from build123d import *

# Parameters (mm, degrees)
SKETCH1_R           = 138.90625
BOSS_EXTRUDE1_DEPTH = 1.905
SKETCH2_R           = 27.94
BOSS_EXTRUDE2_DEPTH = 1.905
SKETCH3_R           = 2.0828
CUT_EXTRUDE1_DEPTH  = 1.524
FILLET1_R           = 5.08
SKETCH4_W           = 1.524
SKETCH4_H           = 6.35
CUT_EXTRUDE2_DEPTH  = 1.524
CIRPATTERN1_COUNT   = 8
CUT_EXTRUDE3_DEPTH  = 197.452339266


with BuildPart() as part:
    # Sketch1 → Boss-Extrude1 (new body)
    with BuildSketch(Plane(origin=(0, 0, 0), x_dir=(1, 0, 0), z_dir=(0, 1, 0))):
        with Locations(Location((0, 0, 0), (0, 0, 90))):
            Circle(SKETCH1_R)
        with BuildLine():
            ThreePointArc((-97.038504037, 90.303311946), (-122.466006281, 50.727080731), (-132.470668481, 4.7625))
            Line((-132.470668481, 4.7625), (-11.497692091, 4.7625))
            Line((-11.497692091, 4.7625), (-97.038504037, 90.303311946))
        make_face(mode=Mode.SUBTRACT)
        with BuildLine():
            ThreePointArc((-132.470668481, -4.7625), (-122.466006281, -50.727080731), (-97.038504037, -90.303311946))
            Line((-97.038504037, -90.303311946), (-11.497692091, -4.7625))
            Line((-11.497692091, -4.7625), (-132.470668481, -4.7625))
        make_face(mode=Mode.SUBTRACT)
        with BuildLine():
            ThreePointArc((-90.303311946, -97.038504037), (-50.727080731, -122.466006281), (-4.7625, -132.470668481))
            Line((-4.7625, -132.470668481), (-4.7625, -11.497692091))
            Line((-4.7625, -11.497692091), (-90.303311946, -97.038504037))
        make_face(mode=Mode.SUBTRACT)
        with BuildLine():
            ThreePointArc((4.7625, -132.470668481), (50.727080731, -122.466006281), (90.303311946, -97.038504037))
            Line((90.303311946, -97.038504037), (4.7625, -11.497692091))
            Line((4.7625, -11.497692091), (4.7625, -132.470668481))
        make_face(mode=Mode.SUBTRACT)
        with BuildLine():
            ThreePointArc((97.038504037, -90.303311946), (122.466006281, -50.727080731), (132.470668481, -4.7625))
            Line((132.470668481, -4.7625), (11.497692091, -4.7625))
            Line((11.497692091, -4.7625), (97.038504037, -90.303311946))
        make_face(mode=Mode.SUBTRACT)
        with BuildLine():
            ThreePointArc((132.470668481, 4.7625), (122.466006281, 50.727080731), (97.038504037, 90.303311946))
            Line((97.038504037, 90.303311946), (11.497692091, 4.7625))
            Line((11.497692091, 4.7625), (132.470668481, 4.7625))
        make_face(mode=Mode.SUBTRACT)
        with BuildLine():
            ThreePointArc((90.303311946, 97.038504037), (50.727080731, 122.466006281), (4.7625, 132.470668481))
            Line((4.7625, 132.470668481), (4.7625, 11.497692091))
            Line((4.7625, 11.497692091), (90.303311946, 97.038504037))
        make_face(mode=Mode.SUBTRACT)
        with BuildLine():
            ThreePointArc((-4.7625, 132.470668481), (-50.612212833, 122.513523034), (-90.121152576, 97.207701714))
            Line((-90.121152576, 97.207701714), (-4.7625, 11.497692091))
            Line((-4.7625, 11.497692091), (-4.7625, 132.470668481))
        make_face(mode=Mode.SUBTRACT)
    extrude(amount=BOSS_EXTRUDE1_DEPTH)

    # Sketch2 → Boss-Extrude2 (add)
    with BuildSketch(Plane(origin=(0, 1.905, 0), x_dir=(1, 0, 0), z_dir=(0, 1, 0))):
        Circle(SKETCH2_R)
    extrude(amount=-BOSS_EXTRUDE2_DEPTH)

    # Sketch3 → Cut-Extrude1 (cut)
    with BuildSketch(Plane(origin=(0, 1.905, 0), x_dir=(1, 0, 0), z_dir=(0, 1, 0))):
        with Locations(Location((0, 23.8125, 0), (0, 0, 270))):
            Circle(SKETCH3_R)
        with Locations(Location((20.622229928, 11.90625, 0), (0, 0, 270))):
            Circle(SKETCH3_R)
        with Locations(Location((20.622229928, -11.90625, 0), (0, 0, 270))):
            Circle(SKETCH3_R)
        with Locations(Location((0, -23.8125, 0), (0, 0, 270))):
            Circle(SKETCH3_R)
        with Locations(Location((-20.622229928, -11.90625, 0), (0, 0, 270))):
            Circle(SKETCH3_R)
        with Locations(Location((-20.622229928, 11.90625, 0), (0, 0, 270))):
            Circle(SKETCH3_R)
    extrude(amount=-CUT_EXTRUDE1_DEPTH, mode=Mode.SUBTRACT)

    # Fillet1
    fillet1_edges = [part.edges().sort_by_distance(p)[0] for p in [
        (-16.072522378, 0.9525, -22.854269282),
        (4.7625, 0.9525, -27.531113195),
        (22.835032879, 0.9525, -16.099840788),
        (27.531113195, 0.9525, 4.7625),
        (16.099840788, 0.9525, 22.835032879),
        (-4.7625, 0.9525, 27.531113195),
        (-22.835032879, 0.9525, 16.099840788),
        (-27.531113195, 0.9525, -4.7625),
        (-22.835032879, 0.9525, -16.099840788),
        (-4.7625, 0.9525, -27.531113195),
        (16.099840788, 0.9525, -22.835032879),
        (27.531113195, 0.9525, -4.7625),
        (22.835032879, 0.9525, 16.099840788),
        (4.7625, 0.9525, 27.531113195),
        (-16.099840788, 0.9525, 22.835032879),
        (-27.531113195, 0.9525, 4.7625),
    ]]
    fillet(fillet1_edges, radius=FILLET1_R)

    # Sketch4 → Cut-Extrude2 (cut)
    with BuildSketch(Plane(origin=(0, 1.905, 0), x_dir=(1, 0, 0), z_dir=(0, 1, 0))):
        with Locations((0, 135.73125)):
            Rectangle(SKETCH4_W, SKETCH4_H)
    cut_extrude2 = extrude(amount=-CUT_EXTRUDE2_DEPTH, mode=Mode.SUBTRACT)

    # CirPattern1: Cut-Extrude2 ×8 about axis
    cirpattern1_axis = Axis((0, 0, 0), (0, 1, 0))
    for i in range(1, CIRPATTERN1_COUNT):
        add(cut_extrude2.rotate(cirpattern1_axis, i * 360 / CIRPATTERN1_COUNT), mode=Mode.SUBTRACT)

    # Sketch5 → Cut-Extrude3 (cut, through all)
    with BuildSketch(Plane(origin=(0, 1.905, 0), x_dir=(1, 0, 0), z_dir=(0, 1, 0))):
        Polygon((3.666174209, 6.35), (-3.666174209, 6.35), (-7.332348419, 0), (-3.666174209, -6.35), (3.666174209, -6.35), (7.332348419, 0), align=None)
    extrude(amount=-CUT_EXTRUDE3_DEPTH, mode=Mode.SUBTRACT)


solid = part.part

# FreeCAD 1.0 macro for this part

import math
import FreeCAD as App
import Part
import Sketcher

V = App.Vector
Q = App.Units.Quantity


def edges_at(feature, points):
    """Names of the edges that pass closest to the given points."""
    edges = feature.Shape.Edges
    near = lambda p: min(range(len(edges)), key=lambda i: edges[i].distToShape(Part.Vertex(*p))[0])
    return sorted({f"Edge{near(p) + 1}" for p in points})

doc = App.newDocument("Part")
body = doc.addObject("PartDesign::Body", "Body")

# Sketch on XZ plane
sketch1 = doc.addObject("Sketcher::SketchObject", "Sketch")
body.addObject(sketch1)
sketch1.AttachmentSupport = (doc.XZ_Plane, [""])
sketch1.MapMode = "FlatFace"
sketch1.addGeometry(Part.Circle(V(0, 0, 0), V(0, 0, 1), 139), False)
sketch1.addGeometry(Part.ArcOfCircle(Part.Circle(V(0, 0, 0), V(0, 0, 1), 133), math.radians(2), math.radians(43)), False)
sketch1.addGeometry(Part.LineSegment(V(97, 90, 0), V(11, 5, 0)), False)
sketch1.addGeometry(Part.LineSegment(V(11, 5, 0), V(132, 5, 0)), False)
sketch1.addGeometry(Part.ArcOfCircle(Part.Circle(V(0, 0, 0), V(0, 0, 1), 133), math.radians(47), math.radians(88)), False)
sketch1.addGeometry(Part.LineSegment(V(5, 132, 0), V(5, 11, 0)), False)
sketch1.addGeometry(Part.LineSegment(V(5, 11, 0), V(90, 97, 0)), False)
sketch1.addGeometry(Part.ArcOfCircle(Part.Circle(V(0, 0, 0), V(0, 0, 1), 133), math.radians(-43), math.radians(-2)), False)
sketch1.addGeometry(Part.LineSegment(V(132, -5, 0), V(11, -5, 0)), False)
sketch1.addGeometry(Part.LineSegment(V(11, -5, 0), V(97, -90, 0)), False)
sketch1.addGeometry(Part.ArcOfCircle(Part.Circle(V(0, 0, 0), V(0, 0, 1), 133), math.radians(-88), math.radians(-47)), False)
sketch1.addGeometry(Part.LineSegment(V(90, -97, 0), V(5, -11, 0)), False)
sketch1.addGeometry(Part.LineSegment(V(5, -11, 0), V(5, -132, 0)), False)
sketch1.addGeometry(Part.ArcOfCircle(Part.Circle(V(0, 0, 0), V(0, 0, 1), 133), math.radians(92), math.radians(133)), False)
sketch1.addGeometry(Part.LineSegment(V(-90, 97, 0), V(-5, 11, 0)), False)
sketch1.addGeometry(Part.LineSegment(V(-5, 11, 0), V(-5, 132, 0)), False)
sketch1.addGeometry(Part.ArcOfCircle(Part.Circle(V(0, 0, 0), V(0, 0, 1), 133), math.radians(137), math.radians(178)), False)
sketch1.addGeometry(Part.LineSegment(V(-132, 5, 0), V(-11, 5, 0)), False)
sketch1.addGeometry(Part.LineSegment(V(-11, 5, 0), V(-97, 90, 0)), False)
sketch1.addGeometry(Part.ArcOfCircle(Part.Circle(V(0, 0, 0), V(0, 0, 1), 133), math.radians(-133), math.radians(-92)), False)
sketch1.addGeometry(Part.LineSegment(V(-5, -132, 0), V(-5, -11, 0)), False)
sketch1.addGeometry(Part.LineSegment(V(-5, -11, 0), V(-90, -97, 0)), False)
sketch1.addGeometry(Part.ArcOfCircle(Part.Circle(V(0, 0, 0), V(0, 0, 1), 133), math.radians(-178), math.radians(-137)), False)
sketch1.addGeometry(Part.LineSegment(V(-97, -90, 0), V(-11, -5, 0)), False)
sketch1.addGeometry(Part.LineSegment(V(-11, -5, 0), V(-132, -5, 0)), False)
sketch1.addConstraint(Sketcher.Constraint("Coincident", 1, 2, 2, 1))
sketch1.addConstraint(Sketcher.Constraint("Coincident", 2, 2, 3, 1))
sketch1.addConstraint(Sketcher.Constraint("Coincident", 3, 2, 1, 1))
sketch1.addConstraint(Sketcher.Constraint("Coincident", 4, 2, 5, 1))
sketch1.addConstraint(Sketcher.Constraint("Coincident", 5, 2, 6, 1))
sketch1.addConstraint(Sketcher.Constraint("Coincident", 6, 2, 4, 1))
sketch1.addConstraint(Sketcher.Constraint("Coincident", 7, 2, 8, 1))
sketch1.addConstraint(Sketcher.Constraint("Coincident", 8, 2, 9, 1))
sketch1.addConstraint(Sketcher.Constraint("Coincident", 9, 2, 7, 1))
sketch1.addConstraint(Sketcher.Constraint("Coincident", 10, 2, 11, 1))
sketch1.addConstraint(Sketcher.Constraint("Coincident", 11, 2, 12, 1))
sketch1.addConstraint(Sketcher.Constraint("Coincident", 12, 2, 10, 1))
sketch1.addConstraint(Sketcher.Constraint("Coincident", 13, 2, 14, 1))
sketch1.addConstraint(Sketcher.Constraint("Coincident", 14, 2, 15, 1))
sketch1.addConstraint(Sketcher.Constraint("Coincident", 15, 2, 13, 1))
sketch1.addConstraint(Sketcher.Constraint("Coincident", 16, 2, 17, 1))
sketch1.addConstraint(Sketcher.Constraint("Coincident", 17, 2, 18, 1))
sketch1.addConstraint(Sketcher.Constraint("Coincident", 18, 2, 16, 1))
sketch1.addConstraint(Sketcher.Constraint("Coincident", 19, 2, 20, 1))
sketch1.addConstraint(Sketcher.Constraint("Coincident", 20, 2, 21, 1))
sketch1.addConstraint(Sketcher.Constraint("Coincident", 21, 2, 19, 1))
sketch1.addConstraint(Sketcher.Constraint("Coincident", 22, 2, 23, 1))
sketch1.addConstraint(Sketcher.Constraint("Coincident", 23, 2, 24, 1))
sketch1.addConstraint(Sketcher.Constraint("Coincident", 24, 2, 22, 1))
sketch1.addConstraint(Sketcher.Constraint("Horizontal", 3))
sketch1.addConstraint(Sketcher.Constraint("Vertical", 5))
sketch1.addConstraint(Sketcher.Constraint("Horizontal", 8))
sketch1.addConstraint(Sketcher.Constraint("Vertical", 12))
sketch1.addConstraint(Sketcher.Constraint("Vertical", 15))
sketch1.addConstraint(Sketcher.Constraint("Horizontal", 17))
sketch1.addConstraint(Sketcher.Constraint("Vertical", 20))
sketch1.addConstraint(Sketcher.Constraint("Horizontal", 24))
sketch1.addConstraint(Sketcher.Constraint("Coincident", 0, 3, -1, 1))
sketch1.addConstraint(Sketcher.Constraint("Coincident", 1, 3, -1, 1))
sketch1.addConstraint(Sketcher.Constraint("Coincident", 4, 3, -1, 1))
sketch1.addConstraint(Sketcher.Constraint("Coincident", 7, 3, -1, 1))
sketch1.addConstraint(Sketcher.Constraint("Coincident", 10, 3, -1, 1))
sketch1.addConstraint(Sketcher.Constraint("Coincident", 13, 3, -1, 1))
sketch1.addConstraint(Sketcher.Constraint("Coincident", 16, 3, -1, 1))
sketch1.addConstraint(Sketcher.Constraint("Coincident", 19, 3, -1, 1))
sketch1.addConstraint(Sketcher.Constraint("Coincident", 22, 3, -1, 1))
sketch1.addConstraint(Sketcher.Constraint("Equal", 1, 4))
sketch1.addConstraint(Sketcher.Constraint("Equal", 4, 7))
sketch1.addConstraint(Sketcher.Constraint("Equal", 7, 10))
sketch1.addConstraint(Sketcher.Constraint("Equal", 10, 13))
sketch1.addConstraint(Sketcher.Constraint("Equal", 13, 16))
sketch1.addConstraint(Sketcher.Constraint("Equal", 16, 19))
sketch1.addConstraint(Sketcher.Constraint("Equal", 19, 22))
sketch1.addConstraint(Sketcher.Constraint("Symmetric", 11, 2, 14, 2, -1, 1))
sketch1.addConstraint(Sketcher.Constraint("Symmetric", 8, 2, 17, 2, -1, 1))
sketch1.addConstraint(Sketcher.Constraint("Symmetric", 5, 2, 20, 2, -1, 1))
sketch1.addConstraint(Sketcher.Constraint("Symmetric", 2, 2, 23, 2, -1, 1))
sketch1.addConstraint(Sketcher.Constraint("Symmetric", 5, 2, 14, 2, -2))
sketch1.addConstraint(Sketcher.Constraint("Symmetric", 2, 2, 17, 2, -2))
sketch1.addConstraint(Sketcher.Constraint("Parallel", 2, 6))
sketch1.addConstraint(Sketcher.Constraint("Perpendicular", 6, 9))
sketch1.addConstraint(Sketcher.Constraint("Parallel", 9, 11))
sketch1.addConstraint(Sketcher.Constraint("Parallel", 11, 14))
sketch1.addConstraint(Sketcher.Constraint("Parallel", 14, 18))
sketch1.addConstraint(Sketcher.Constraint("Perpendicular", 18, 23))
sketch1.addConstraint(Sketcher.Constraint("Horizontal", 6, 2, 13, 2))
sketch1.addConstraint(Sketcher.Constraint("Equal", 24, 5))
sketch1.addConstraint(Sketcher.Constraint("Equal", 2, 6))
sketch1.addConstraint(Sketcher.Constraint("Diameter", 0, Q("10.9375 in")))
sketch1.addConstraint(Sketcher.Constraint("Radius", 1, Q("5.21875 in")))
sketch1.addConstraint(Sketcher.Constraint("DistanceY", -1, 1, 2, 2, Q("0.1875 in")))
sketch1.addConstraint(Sketcher.Constraint("DistanceY", 21, 2, -1, 1, 97.207702))
sketch1.addConstraint(Sketcher.Constraint("DistanceX", 3, 1, 3, 2, 120.972976))
pad1 = doc.addObject("PartDesign::Pad", "Pad")
body.addObject(pad1)
pad1.Profile = sketch1
pad1.Length = Q("0.075 in")
pad1.Reversed = True

# Sketch on XZ plane
sketch2 = doc.addObject("Sketcher::SketchObject", "Sketch001")
body.addObject(sketch2)
sketch2.AttachmentSupport = (doc.XZ_Plane, [""])
sketch2.MapMode = "FlatFace"
sketch2.AttachmentOffset = App.Placement(V(0, 0, -0.075 * 25.4), App.Rotation())
sketch2.addGeometry(Part.Circle(V(0, 0, 0), V(0, 0, 1), 28), False)
sketch2.addConstraint(Sketcher.Constraint("Coincident", 0, 3, -1, 1))
sketch2.addConstraint(Sketcher.Constraint("Diameter", 0, Q("2.2 in")))
pad2 = doc.addObject("PartDesign::Pad", "Pad001")
body.addObject(pad2)
pad2.Profile = sketch2
pad2.Length = Q("0.075 in")

# Sketch on XZ plane
sketch3 = doc.addObject("Sketcher::SketchObject", "Sketch002")
body.addObject(sketch3)
sketch3.AttachmentSupport = (doc.XZ_Plane, [""])
sketch3.MapMode = "FlatFace"
sketch3.AttachmentOffset = App.Placement(V(0, 0, -0.075 * 25.4), App.Rotation())
sketch3.addGeometry(Part.Circle(V(0, -23.8, 0), V(0, 0, 1), 2.1), False)
sketch3.addGeometry(Part.Circle(V(20.6, -11.9, 0), V(0, 0, 1), 2.1), False)
sketch3.addGeometry(Part.Circle(V(20.6, 11.9, 0), V(0, 0, 1), 2.1), False)
sketch3.addGeometry(Part.Circle(V(0, 23.8, 0), V(0, 0, 1), 2.1), False)
sketch3.addGeometry(Part.Circle(V(-20.6, 11.9, 0), V(0, 0, 1), 2.1), False)
sketch3.addGeometry(Part.Circle(V(-20.6, -11.9, 0), V(0, 0, 1), 2.1), False)
sketch3.addConstraint(Sketcher.Constraint("Equal", 0, 1))
sketch3.addConstraint(Sketcher.Constraint("Equal", 1, 2))
sketch3.addConstraint(Sketcher.Constraint("Equal", 2, 3))
sketch3.addConstraint(Sketcher.Constraint("Equal", 3, 4))
sketch3.addConstraint(Sketcher.Constraint("Equal", 4, 5))
sketch3.addConstraint(Sketcher.Constraint("Symmetric", 0, 3, 3, 3, -1, 1))
sketch3.addConstraint(Sketcher.Constraint("Symmetric", 1, 3, 4, 3, -1, 1))
sketch3.addConstraint(Sketcher.Constraint("Symmetric", 2, 3, 5, 3, -1, 1))
sketch3.addConstraint(Sketcher.Constraint("Symmetric", 2, 3, 4, 3, -2))
sketch3.addConstraint(Sketcher.Constraint("PointOnObject", 0, 3, -2))
sketch3.addConstraint(Sketcher.Constraint("Diameter", 0, Q("0.164 in")))
sketch3.addConstraint(Sketcher.Constraint("DistanceY", 0, 3, -1, 1, Q("0.9375 in")))
sketch3.addConstraint(Sketcher.Constraint("DistanceY", 1, 3, -1, 1, Q("0.46875 in")))
sketch3.addConstraint(Sketcher.Constraint("DistanceX", -1, 1, 1, 3, 20.62223))
pocket1 = doc.addObject("PartDesign::Pocket", "Pocket")
body.addObject(pocket1)
pocket1.Profile = sketch3
pocket1.Length = Q("0.06 in")
pocket1.Reversed = True
doc.recompute()

fillet = doc.addObject("PartDesign::Fillet", "Fillet")
body.addObject(fillet)
fillet.Base = (pocket1, edges_at(pocket1, [
    (-16.073, 0.953, -22.854),
    (4.763, 0.953, -27.531),
    (22.835, 0.953, -16.1),
    (27.531, 0.953, 4.763),
    (16.1, 0.953, 22.835),
    (-4.763, 0.953, 27.531),
    (-22.835, 0.953, 16.1),
    (-27.531, 0.953, -4.763),
    (-22.835, 0.953, -16.1),
    (-4.763, 0.953, -27.531),
    (16.1, 0.953, -22.835),
    (27.531, 0.953, -4.763),
    (22.835, 0.953, 16.1),
    (4.763, 0.953, 27.531),
    (-16.1, 0.953, 22.835),
    (-27.531, 0.953, 4.763),
]))
fillet.Radius = Q("0.2 in")

# Sketch on XZ plane
sketch4 = doc.addObject("Sketcher::SketchObject", "Sketch003")
body.addObject(sketch4)
sketch4.AttachmentSupport = (doc.XZ_Plane, [""])
sketch4.MapMode = "FlatFace"
sketch4.AttachmentOffset = App.Placement(V(0, 0, -0.075 * 25.4), App.Rotation())
sketch4.addGeometry(Part.LineSegment(V(-0.8, -138.9, 0), V(-0.8, -132.6, 0)), False)
sketch4.addGeometry(Part.LineSegment(V(-0.8, -132.6, 0), V(0.8, -132.6, 0)), False)
sketch4.addGeometry(Part.LineSegment(V(0.8, -132.6, 0), V(0.8, -138.9, 0)), False)
sketch4.addGeometry(Part.LineSegment(V(0.8, -138.9, 0), V(-0.8, -138.9, 0)), False)
sketch4.addConstraint(Sketcher.Constraint("Coincident", 0, 2, 1, 1))
sketch4.addConstraint(Sketcher.Constraint("Coincident", 1, 2, 2, 1))
sketch4.addConstraint(Sketcher.Constraint("Coincident", 2, 2, 3, 1))
sketch4.addConstraint(Sketcher.Constraint("Coincident", 3, 2, 0, 1))
sketch4.addConstraint(Sketcher.Constraint("Vertical", 0))
sketch4.addConstraint(Sketcher.Constraint("Horizontal", 1))
sketch4.addConstraint(Sketcher.Constraint("Vertical", 2))
sketch4.addConstraint(Sketcher.Constraint("Horizontal", 3))
sketch4.addConstraint(Sketcher.Constraint("DistanceX", 1, 1, 1, 2, Q("0.06 in")))
sketch4.addConstraint(Sketcher.Constraint("DistanceY", 0, 1, 0, 2, Q("0.25 in")))
sketch4.addConstraint(Sketcher.Constraint("DistanceX", 0, 2, -1, 1, Q("0.03 in")))
sketch4.addConstraint(Sketcher.Constraint("DistanceY", 0, 2, -1, 1, Q("5.21875 in")))
pocket2 = doc.addObject("PartDesign::Pocket", "Pocket001")
body.addObject(pocket2)
pocket2.Profile = sketch4
pocket2.Length = Q("0.06 in")
pocket2.Reversed = True
doc.recompute()

polarpattern = doc.addObject("PartDesign::PolarPattern", "PolarPattern")
body.addObject(polarpattern)
polarpattern.Originals = [pocket2]
polarpattern.Axis = (doc.Y_Axis, [""])
polarpattern.Angle = 360
polarpattern.Occurrences = 8
body.Tip = polarpattern

# Sketch on XZ plane
sketch5 = doc.addObject("Sketcher::SketchObject", "Sketch004")
body.addObject(sketch5)
sketch5.AttachmentSupport = (doc.XZ_Plane, [""])
sketch5.MapMode = "FlatFace"
sketch5.AttachmentOffset = App.Placement(V(0, 0, -0.075 * 25.4), App.Rotation())
sketch5.addGeometry(Part.LineSegment(V(4, -6, 0), V(-4, -6, 0)), False)
sketch5.addGeometry(Part.LineSegment(V(-4, -6, 0), V(-7, 0, 0)), False)
sketch5.addGeometry(Part.LineSegment(V(-7, 0, 0), V(-4, 6, 0)), False)
sketch5.addGeometry(Part.LineSegment(V(-4, 6, 0), V(4, 6, 0)), False)
sketch5.addGeometry(Part.LineSegment(V(4, 6, 0), V(7, 0, 0)), False)
sketch5.addGeometry(Part.LineSegment(V(7, 0, 0), V(4, -6, 0)), False)
sketch5.addConstraint(Sketcher.Constraint("Coincident", 0, 2, 1, 1))
sketch5.addConstraint(Sketcher.Constraint("Coincident", 1, 2, 2, 1))
sketch5.addConstraint(Sketcher.Constraint("Coincident", 2, 2, 3, 1))
sketch5.addConstraint(Sketcher.Constraint("Coincident", 3, 2, 4, 1))
sketch5.addConstraint(Sketcher.Constraint("Coincident", 4, 2, 5, 1))
sketch5.addConstraint(Sketcher.Constraint("Coincident", 5, 2, 0, 1))
sketch5.addConstraint(Sketcher.Constraint("Horizontal", 0))
sketch5.addConstraint(Sketcher.Constraint("Horizontal", 3))
sketch5.addConstraint(Sketcher.Constraint("Symmetric", 0, 2, 3, 2, -1, 1))
sketch5.addConstraint(Sketcher.Constraint("Symmetric", 1, 2, 4, 2, -1, 1))
sketch5.addConstraint(Sketcher.Constraint("PointOnObject", 1, 2, -1))
sketch5.addConstraint(Sketcher.Constraint("Parallel", 2, 5))
sketch5.addConstraint(Sketcher.Constraint("Vertical", 0, 2, 2, 2))
sketch5.addConstraint(Sketcher.Constraint("Angle", 1, Q("120 deg")))
sketch5.addConstraint(Sketcher.Constraint("DistanceY", 0, 2, 2, 2, Q("0.5 in")))
sketch5.addConstraint(Sketcher.Constraint("DistanceX", 0, 2, 0, 1, 7.332348))
pocket3 = doc.addObject("PartDesign::Pocket", "Pocket002")
body.addObject(pocket3)
pocket3.Profile = sketch5
pocket3.Type = "ThroughAll"
pocket3.Reversed = True

doc.recompute()
